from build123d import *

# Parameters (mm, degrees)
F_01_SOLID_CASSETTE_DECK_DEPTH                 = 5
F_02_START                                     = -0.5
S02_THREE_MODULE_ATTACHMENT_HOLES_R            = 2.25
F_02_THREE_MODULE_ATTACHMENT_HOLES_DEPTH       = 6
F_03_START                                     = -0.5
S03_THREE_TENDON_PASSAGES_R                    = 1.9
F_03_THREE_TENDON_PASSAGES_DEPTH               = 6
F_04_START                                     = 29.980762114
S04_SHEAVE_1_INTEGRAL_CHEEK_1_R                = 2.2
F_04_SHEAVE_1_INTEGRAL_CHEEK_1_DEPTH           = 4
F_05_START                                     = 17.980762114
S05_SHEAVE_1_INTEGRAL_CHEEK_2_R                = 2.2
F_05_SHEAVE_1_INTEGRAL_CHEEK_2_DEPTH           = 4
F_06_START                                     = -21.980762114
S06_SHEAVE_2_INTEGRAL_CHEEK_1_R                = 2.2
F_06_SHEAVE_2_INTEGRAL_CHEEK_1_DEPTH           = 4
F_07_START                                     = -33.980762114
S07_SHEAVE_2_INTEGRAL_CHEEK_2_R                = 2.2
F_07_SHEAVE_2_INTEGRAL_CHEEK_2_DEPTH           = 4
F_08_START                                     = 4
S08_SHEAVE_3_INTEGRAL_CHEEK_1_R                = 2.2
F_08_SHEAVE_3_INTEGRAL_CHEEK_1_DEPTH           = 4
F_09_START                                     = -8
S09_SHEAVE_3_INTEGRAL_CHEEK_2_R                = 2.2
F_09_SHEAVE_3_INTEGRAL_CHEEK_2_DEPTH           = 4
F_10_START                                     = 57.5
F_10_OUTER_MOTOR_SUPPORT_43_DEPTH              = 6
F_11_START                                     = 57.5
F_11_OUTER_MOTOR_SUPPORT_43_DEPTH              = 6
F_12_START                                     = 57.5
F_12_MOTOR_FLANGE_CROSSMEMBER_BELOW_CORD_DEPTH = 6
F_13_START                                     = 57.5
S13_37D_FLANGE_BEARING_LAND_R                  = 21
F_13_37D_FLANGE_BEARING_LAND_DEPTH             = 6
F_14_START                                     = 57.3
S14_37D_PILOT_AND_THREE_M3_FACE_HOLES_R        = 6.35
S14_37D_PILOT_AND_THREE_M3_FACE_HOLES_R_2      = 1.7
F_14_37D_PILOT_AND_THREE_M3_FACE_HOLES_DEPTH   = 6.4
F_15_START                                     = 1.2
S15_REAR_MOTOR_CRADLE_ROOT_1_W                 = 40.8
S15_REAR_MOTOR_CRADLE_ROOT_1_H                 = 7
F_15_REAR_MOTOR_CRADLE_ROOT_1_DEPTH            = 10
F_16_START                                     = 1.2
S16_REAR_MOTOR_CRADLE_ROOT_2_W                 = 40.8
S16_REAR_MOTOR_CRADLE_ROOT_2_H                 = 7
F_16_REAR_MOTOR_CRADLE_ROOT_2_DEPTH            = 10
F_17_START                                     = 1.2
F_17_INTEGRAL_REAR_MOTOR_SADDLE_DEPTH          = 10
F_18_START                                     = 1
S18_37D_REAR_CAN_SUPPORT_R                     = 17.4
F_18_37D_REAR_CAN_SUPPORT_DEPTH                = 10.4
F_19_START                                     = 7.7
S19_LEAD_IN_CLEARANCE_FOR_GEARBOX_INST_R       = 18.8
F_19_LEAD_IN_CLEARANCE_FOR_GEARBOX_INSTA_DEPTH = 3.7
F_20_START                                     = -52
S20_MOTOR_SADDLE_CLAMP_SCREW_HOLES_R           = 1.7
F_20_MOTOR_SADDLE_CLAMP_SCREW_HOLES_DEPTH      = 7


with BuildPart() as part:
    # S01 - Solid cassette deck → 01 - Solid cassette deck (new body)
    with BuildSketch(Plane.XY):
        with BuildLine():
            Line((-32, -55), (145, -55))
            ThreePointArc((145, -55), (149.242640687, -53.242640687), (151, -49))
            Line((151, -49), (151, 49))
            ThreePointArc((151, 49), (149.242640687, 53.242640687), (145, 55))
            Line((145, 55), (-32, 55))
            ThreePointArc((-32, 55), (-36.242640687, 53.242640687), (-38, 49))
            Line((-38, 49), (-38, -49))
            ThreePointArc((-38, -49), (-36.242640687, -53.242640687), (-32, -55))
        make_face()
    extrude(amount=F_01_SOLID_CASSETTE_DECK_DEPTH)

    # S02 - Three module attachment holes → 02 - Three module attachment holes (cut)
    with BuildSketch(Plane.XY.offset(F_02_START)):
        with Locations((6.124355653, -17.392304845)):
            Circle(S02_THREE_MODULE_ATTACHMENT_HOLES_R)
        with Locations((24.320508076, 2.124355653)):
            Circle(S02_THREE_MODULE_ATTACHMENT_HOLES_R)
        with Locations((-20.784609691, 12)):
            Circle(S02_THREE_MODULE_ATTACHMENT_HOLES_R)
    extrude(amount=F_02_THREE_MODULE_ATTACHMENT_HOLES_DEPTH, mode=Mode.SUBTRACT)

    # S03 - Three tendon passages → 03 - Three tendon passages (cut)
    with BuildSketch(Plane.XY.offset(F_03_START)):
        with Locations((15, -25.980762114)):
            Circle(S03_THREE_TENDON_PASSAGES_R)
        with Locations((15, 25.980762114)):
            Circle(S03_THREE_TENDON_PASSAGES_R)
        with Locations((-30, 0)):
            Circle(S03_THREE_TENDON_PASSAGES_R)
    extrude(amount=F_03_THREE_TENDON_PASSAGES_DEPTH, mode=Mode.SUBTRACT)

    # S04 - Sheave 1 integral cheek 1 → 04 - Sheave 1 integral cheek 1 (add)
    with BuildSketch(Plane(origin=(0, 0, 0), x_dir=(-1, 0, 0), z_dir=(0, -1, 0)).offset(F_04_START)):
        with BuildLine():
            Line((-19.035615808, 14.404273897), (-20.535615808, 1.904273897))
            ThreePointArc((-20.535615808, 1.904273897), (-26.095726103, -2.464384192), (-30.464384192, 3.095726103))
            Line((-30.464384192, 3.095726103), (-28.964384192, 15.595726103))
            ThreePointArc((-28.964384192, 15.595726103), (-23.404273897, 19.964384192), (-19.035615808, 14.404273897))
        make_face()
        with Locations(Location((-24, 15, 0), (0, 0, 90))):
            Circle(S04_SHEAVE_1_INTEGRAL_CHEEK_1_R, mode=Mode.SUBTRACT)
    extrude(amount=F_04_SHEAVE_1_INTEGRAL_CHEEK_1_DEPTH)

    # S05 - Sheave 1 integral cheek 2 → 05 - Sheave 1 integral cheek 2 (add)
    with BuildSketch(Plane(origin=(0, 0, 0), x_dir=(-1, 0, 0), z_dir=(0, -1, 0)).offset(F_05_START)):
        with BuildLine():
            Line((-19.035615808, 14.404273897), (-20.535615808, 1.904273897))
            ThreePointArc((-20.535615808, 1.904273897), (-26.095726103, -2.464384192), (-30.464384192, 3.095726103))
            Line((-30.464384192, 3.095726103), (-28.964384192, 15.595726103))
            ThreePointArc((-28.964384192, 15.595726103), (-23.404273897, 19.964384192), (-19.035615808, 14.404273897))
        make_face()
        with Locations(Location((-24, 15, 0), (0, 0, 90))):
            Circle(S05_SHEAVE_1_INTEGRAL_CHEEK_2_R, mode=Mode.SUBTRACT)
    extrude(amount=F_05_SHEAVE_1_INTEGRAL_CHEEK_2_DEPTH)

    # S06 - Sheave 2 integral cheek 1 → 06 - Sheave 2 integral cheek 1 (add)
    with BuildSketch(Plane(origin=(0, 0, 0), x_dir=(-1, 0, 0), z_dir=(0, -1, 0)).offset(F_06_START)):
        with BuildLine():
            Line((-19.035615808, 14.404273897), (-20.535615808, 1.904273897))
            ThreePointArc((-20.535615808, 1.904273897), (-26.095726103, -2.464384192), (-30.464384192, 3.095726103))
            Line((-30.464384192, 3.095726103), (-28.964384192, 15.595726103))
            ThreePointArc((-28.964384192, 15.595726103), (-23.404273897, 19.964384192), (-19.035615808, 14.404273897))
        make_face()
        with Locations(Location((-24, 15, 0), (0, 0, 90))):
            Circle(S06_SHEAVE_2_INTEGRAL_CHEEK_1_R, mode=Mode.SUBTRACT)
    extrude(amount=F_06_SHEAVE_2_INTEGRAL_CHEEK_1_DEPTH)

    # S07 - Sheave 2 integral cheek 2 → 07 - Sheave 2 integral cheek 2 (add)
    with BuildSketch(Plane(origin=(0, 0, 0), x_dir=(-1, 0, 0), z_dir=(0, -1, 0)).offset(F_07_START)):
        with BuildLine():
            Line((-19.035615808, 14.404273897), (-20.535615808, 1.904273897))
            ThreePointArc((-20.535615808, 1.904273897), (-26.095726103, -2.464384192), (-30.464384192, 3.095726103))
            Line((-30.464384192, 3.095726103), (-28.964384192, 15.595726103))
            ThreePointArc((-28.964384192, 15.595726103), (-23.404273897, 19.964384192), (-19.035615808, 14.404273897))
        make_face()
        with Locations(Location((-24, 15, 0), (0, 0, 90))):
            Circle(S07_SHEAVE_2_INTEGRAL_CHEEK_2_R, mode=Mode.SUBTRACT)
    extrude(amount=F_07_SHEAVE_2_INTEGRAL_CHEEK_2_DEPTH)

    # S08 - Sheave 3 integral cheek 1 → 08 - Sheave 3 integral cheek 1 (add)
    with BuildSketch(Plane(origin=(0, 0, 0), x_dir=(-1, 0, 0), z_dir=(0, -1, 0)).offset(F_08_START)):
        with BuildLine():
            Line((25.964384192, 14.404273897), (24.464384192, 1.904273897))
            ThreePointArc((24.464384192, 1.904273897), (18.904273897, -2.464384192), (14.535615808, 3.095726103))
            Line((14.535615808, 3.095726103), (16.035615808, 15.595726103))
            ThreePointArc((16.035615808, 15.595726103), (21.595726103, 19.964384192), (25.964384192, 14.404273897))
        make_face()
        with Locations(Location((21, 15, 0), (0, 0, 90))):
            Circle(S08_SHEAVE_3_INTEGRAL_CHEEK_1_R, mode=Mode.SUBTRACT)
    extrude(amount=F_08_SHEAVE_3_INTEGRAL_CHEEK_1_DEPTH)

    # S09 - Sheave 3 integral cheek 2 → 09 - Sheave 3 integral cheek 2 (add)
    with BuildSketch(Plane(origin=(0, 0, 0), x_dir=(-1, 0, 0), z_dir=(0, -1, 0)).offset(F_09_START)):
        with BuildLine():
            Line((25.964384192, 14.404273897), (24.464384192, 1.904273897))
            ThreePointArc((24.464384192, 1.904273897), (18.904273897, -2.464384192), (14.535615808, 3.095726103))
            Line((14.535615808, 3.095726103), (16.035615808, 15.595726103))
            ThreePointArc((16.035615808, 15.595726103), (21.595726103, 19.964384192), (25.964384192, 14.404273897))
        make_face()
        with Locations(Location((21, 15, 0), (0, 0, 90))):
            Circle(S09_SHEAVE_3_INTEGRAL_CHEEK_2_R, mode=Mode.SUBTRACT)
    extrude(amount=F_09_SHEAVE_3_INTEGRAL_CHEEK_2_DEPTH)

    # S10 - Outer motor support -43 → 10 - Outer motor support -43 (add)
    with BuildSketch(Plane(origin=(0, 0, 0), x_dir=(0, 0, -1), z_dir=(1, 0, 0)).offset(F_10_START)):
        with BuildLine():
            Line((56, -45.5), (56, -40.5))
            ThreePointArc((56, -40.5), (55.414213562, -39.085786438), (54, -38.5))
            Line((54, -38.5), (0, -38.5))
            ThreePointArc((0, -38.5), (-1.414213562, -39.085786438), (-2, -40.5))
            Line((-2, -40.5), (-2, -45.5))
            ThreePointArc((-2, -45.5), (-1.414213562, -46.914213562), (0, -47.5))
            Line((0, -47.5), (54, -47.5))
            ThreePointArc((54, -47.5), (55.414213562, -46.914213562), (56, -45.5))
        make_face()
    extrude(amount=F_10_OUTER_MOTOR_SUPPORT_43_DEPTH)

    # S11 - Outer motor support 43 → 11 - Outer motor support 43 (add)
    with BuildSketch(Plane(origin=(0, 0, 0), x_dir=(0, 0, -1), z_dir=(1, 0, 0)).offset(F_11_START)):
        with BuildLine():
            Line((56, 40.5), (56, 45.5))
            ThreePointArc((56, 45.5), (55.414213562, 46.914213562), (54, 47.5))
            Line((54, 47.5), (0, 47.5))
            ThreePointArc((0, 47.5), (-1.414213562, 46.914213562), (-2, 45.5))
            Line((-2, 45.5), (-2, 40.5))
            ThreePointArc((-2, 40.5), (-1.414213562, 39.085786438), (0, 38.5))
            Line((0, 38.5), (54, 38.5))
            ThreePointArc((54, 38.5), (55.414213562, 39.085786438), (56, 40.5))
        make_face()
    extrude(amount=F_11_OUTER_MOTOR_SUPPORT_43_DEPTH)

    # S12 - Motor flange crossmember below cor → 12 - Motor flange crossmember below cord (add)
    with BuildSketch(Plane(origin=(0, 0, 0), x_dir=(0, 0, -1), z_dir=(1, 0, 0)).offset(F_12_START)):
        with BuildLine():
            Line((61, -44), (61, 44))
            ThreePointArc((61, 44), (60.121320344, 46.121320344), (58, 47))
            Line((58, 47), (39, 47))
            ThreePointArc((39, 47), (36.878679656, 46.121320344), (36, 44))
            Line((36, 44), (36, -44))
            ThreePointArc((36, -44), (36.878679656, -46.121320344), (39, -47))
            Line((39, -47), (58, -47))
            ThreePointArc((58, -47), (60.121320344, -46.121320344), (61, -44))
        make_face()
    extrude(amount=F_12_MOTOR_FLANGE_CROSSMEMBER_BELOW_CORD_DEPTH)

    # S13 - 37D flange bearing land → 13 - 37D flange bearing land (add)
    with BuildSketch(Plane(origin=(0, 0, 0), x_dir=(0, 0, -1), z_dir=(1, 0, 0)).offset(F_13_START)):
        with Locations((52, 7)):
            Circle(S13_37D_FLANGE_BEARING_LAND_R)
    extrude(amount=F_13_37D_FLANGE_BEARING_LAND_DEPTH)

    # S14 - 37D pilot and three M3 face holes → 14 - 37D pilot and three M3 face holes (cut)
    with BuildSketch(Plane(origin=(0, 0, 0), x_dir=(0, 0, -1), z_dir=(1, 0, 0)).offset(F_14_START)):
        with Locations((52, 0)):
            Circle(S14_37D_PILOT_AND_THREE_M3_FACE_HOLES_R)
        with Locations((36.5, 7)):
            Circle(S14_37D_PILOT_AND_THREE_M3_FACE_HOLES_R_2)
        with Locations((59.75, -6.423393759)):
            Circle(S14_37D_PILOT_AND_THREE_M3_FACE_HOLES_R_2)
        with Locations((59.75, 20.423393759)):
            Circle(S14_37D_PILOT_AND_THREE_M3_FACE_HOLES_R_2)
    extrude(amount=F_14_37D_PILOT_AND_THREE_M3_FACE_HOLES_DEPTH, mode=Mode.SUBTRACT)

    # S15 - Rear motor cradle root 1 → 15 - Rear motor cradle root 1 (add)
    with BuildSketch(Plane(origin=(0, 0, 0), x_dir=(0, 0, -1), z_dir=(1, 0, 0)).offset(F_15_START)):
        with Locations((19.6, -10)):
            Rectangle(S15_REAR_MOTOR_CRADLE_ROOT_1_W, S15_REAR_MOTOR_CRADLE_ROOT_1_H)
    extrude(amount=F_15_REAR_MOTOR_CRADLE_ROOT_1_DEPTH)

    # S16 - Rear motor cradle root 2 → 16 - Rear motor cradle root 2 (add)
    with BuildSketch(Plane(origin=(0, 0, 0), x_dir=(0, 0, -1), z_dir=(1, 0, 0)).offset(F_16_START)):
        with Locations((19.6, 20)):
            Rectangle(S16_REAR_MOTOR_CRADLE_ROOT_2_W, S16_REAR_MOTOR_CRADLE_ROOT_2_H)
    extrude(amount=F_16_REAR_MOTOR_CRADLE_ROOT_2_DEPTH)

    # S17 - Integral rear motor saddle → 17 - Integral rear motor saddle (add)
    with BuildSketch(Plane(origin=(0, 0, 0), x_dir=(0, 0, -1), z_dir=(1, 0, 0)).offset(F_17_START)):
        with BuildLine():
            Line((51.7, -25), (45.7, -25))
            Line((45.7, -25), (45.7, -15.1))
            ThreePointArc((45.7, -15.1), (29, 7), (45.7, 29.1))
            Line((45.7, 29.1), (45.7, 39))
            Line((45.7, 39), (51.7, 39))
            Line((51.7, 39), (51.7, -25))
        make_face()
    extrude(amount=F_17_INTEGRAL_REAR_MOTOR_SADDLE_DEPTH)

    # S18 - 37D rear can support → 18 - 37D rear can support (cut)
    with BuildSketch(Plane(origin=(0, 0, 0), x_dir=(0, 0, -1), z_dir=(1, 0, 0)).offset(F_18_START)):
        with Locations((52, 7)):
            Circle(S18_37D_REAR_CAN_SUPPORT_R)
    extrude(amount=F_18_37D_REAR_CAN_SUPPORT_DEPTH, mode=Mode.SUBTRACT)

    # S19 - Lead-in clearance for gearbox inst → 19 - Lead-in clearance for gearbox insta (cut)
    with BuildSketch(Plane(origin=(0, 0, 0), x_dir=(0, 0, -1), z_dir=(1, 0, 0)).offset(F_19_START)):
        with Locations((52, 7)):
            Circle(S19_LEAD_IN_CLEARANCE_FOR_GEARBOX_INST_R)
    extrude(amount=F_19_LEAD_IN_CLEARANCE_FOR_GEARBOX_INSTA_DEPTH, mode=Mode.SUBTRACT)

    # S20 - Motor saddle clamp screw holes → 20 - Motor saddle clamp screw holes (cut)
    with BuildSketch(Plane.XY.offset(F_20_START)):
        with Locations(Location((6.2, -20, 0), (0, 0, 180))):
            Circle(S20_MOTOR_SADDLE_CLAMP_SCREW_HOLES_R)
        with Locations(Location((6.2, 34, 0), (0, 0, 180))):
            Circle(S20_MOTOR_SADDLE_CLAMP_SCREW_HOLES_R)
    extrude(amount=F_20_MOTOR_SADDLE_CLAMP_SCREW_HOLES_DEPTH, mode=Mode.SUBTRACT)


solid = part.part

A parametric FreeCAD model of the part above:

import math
import FreeCAD as App
import Part
import Sketcher
from FreeCAD import Vector
Q = App.Units.Quantity

doc = App.newDocument("Part")
params = doc.addObject("Spreadsheet::Sheet", "Params")
for row, (alias, value) in enumerate([
    ("sketch1_radius", "6 mm"),
    ("sketch1_width", "177 mm"),
    ("sketch1_height", "98 mm"),
    ("pad1_length", "5 mm"),
    ("sketch2_diameter", "4.5 mm"),
    ("pocket1_length", "6 mm"),
    ("sketch3_diameter", "3.8 mm"),
    ("pocket2_length", "6 mm"),
    ("sketch4_radius", "5 mm"),
    ("sketch4_diameter", "4.4 mm"),
    ("pad2_length", "4 mm"),
    ("sketch5_radius", "5 mm"),
    ("sketch5_diameter", "4.4 mm"),
    ("pad3_length", "4 mm"),
    ("sketch6_radius", "5 mm"),
    ("sketch6_diameter", "4.4 mm"),
    ("pad4_length", "4 mm"),
    ("sketch7_radius", "5 mm"),
    ("sketch7_diameter", "4.4 mm"),
    ("pad5_length", "4 mm"),
    ("sketch8_radius", "5 mm"),
    ("sketch8_diameter", "4.4 mm"),
    ("pad6_length", "4 mm"),
    ("sketch9_radius", "5 mm"),
    ("sketch9_diameter", "4.4 mm"),
    ("pad7_length", "4 mm"),
    ("sketch10_radius", "2 mm"),
    ("sketch10_width", "5 mm"),
    ("sketch10_height", "54 mm"),
    ("pad8_length", "6 mm"),
    ("sketch11_radius", "2 mm"),
    ("sketch11_width", "5 mm"),
    ("sketch11_height", "54 mm"),
    ("pad9_length", "6 mm"),
    ("sketch12_radius", "3 mm"),
    ("sketch12_width", "88 mm"),
    ("sketch12_height", "19 mm"),
    ("pad10_length", "6 mm"),
    ("sketch13_diameter", "42 mm"),
    ("pad11_length", "6 mm"),
    ("sketch14_diameter", "12.7 mm"),
    ("sketch14_diameter2", "3.4 mm"),
    ("pocket3_length", "6.4 mm"),
    ("sketch15_width", "7 mm"),
    ("sketch15_height", "40.8 mm"),
    ("pad12_length", "10 mm"),
    ("sketch16_width", "7 mm"),
    ("sketch16_height", "40.8 mm"),
    ("pad13_length", "10 mm"),
    ("sketch17_width", "64 mm"),
    ("sketch17_height", "6 mm"),
    ("sketch17_width2", "9.9 mm"),
    ("pad14_length", "10 mm"),
    ("sketch18_diameter", "34.8 mm"),
    ("pocket4_length", "10.4 mm"),
    ("sketch19_diameter", "37.6 mm"),
    ("pocket5_length", "3.7 mm"),
    ("sketch20_diameter", "3.4 mm"),
    ("pocket6_length", "7 mm"),
], start=1):
    params.set(f"A{row}", alias)
    params.set(f"B{row}", "=" + value)
    params.setAlias(f"B{row}", alias)

body = doc.addObject("PartDesign::Body", "Body")

# Sketch on XY plane
sketch1 = body.newObject("Sketcher::SketchObject", "Sketch")
sketch1.AttachmentSupport = (doc.getObject("XY_Plane"), [""])
sketch1.MapMode = "FlatFace"
sketch1.addGeometry([
    Part.LineSegment(Vector(-32, -55, 0), Vector(145, -55, 0)),  # 0
    Part.ArcOfCircle(Part.Circle(Vector(145, -49, 0), Vector(0, 0, 1), 6), math.radians(-90), math.radians(0)),  # 1
    Part.LineSegment(Vector(151, -49, 0), Vector(151, 49, 0)),  # 2
    Part.ArcOfCircle(Part.Circle(Vector(145, 49, 0), Vector(0, 0, 1), 6), math.radians(0), math.radians(90)),  # 3
    Part.LineSegment(Vector(145, 55, 0), Vector(-32, 55, 0)),  # 4
    Part.ArcOfCircle(Part.Circle(Vector(-32, 49, 0), Vector(0, 0, 1), 6), math.radians(90), math.radians(180)),  # 5
    Part.LineSegment(Vector(-38, 49, 0), Vector(-38, -49, 0)),  # 6
    Part.ArcOfCircle(Part.Circle(Vector(-32, -49, 0), Vector(0, 0, 1), 6), math.radians(180), math.radians(270)),  # 7
], False)
sketch1.addConstraint([
    Sketcher.Constraint("Tangent", 0, 2, 1, 1),
    Sketcher.Constraint("Tangent", 1, 2, 2, 1),
    Sketcher.Constraint("Tangent", 2, 2, 3, 1),
    Sketcher.Constraint("Tangent", 3, 2, 4, 1),
    Sketcher.Constraint("Tangent", 4, 2, 5, 1),
    Sketcher.Constraint("Tangent", 5, 2, 6, 1),
    Sketcher.Constraint("Tangent", 6, 2, 7, 1),
    Sketcher.Constraint("Tangent", 7, 2, 0, 1),
    Sketcher.Constraint("Horizontal", 0),
    Sketcher.Constraint("Vertical", 2),
    Sketcher.Constraint("Horizontal", 4),
    Sketcher.Constraint("Vertical", 6),
    Sketcher.Constraint("Equal", 1, 3),
    Sketcher.Constraint("Equal", 3, 5),
    Sketcher.Constraint("Equal", 5, 7),
    Sketcher.Constraint("Radius", 1, Q("6 mm")),
    Sketcher.Constraint("DistanceX", 0, 1, 0, 2, Q("177 mm")),
    Sketcher.Constraint("DistanceY", 2, 1, 2, 2, Q("98 mm")),
    Sketcher.Constraint("DistanceX", -1, 1, 1, 3, Q("145 mm")),
    Sketcher.Constraint("DistanceY", 1, 3, -1, 1, Q("49 mm")),
])
sketch1.setExpression("Constraints[15]", "Params.sketch1_radius")
sketch1.setExpression("Constraints[16]", "Params.sketch1_width")
sketch1.setExpression("Constraints[17]", "Params.sketch1_height")
pad1 = body.newObject("PartDesign::Pad", "Pad")
pad1.Profile = sketch1
pad1.setExpression("Length", "Params.pad1_length")

# Sketch on XY plane
sketch2 = body.newObject("Sketcher::SketchObject", "Sketch001")
sketch2.AttachmentSupport = (doc.getObject("XY_Plane"), [""])
sketch2.MapMode = "FlatFace"
sketch2.AttachmentOffset = App.Placement(Vector(0, 0, -0.5), App.Rotation())
sketch2.addGeometry([
    Part.Circle(Vector(6.1, -17.4, 0), Vector(0, 0, 1), 2.2),
    Part.Circle(Vector(24.3, 2.1, 0), Vector(0, 0, 1), 2.2),
    Part.Circle(Vector(-20.8, 12, 0), Vector(0, 0, 1), 2.2),
], False)
sketch2.addConstraint([
    Sketcher.Constraint("Equal", 0, 1),
    Sketcher.Constraint("Equal", 1, 2),
    Sketcher.Constraint("Diameter", 0, Q("4.5 mm")),
    Sketcher.Constraint("DistanceY", -1, 1, 2, 3, Q("12 mm")),
    Sketcher.Constraint("DistanceX", -1, 1, 1, 3, Q("24.320508 mm")),
    Sketcher.Constraint("DistanceX", 2, 3, -1, 1, Q("20.78461 mm")),
    Sketcher.Constraint("DistanceY", 0, 3, 1, 3, Q("19.51666 mm")),
    Sketcher.Constraint("DistanceX", -1, 1, 0, 3, Q("6.124356 mm")),
    Sketcher.Constraint("DistanceY", 0, 3, -1, 1, Q("17.392305 mm")),
])
sketch2.setExpression("Constraints[2]", "Params.sketch2_diameter")
pocket1 = body.newObject("PartDesign::Pocket", "Pocket")
pocket1.Profile = sketch2
pocket1.setExpression("Length", "Params.pocket1_length")
pocket1.Reversed = True

# Sketch on XY plane
sketch3 = body.newObject("Sketcher::SketchObject", "Sketch002")
sketch3.AttachmentSupport = (doc.getObject("XY_Plane"), [""])
sketch3.MapMode = "FlatFace"
sketch3.AttachmentOffset = App.Placement(Vector(0, 0, -0.5), App.Rotation())
sketch3.addGeometry([
    Part.Circle(Vector(15, -26, 0), Vector(0, 0, 1), 1.9),
    Part.Circle(Vector(15, 26, 0), Vector(0, 0, 1), 1.9),
    Part.Circle(Vector(-30, 0, 0), Vector(0, 0, 1), 1.9),
], False)
sketch3.addConstraint([
    Sketcher.Constraint("Equal", 0, 1),
    Sketcher.Constraint("Equal", 1, 2),
    Sketcher.Constraint("Symmetric", 0, 3, 1, 3, -1),
    Sketcher.Constraint("PointOnObject", 2, 3, -1),
    Sketcher.Constraint("Diameter", 0, Q("3.8 mm")),
    Sketcher.Constraint("DistanceX", -1, 1, 0, 3, Q("15 mm")),
    Sketcher.Constraint("DistanceX", 2, 3, -1, 1, Q("30 mm")),
    Sketcher.Constraint("DistanceY", 0, 3, -1, 1, Q("25.980762 mm")),
])
sketch3.setExpression("Constraints[4]", "Params.sketch3_diameter")
pocket2 = body.newObject("PartDesign::Pocket", "Pocket001")
pocket2.Profile = sketch3
pocket2.setExpression("Length", "Params.pocket2_length")
pocket2.Reversed = True

# Sketch on XZ plane
sketch4 = body.newObject("Sketcher::SketchObject", "Sketch003")
sketch4.AttachmentSupport = (doc.getObject("XZ_Plane"), [""])
sketch4.MapMode = "FlatFace"
sketch4.AttachmentOffset = App.Placement(Vector(0, 0, 29.980762), App.Rotation())
sketch4.addGeometry([
    Part.LineSegment(Vector(20.5, -1.9, 0), Vector(19, -14.4, 0)),  # 0
    Part.ArcOfCircle(Part.Circle(Vector(24, -15, 0), Vector(0, 0, 1), 5), math.radians(173), math.radians(353)),  # 1
    Part.LineSegment(Vector(29, -15.6, 0), Vector(30.5, -3.1, 0)),  # 2
    Part.ArcOfCircle(Part.Circle(Vector(25.5, -2.5, 0), Vector(0, 0, 1), 5), math.radians(-7), math.radians(173)),  # 3
    Part.Circle(Vector(24, -15, 0), Vector(0, 0, 1), 2.2),  # 4
], False)
sketch4.addConstraint([
    Sketcher.Constraint("Tangent", 0, 2, 1, 1),
    Sketcher.Constraint("Tangent", 1, 2, 2, 1),
    Sketcher.Constraint("Tangent", 2, 2, 3, 1),
    Sketcher.Constraint("Tangent", 3, 2, 0, 1),
    Sketcher.Constraint("Coincident", 4, 3, 1, 3),
    Sketcher.Constraint("Equal", 1, 3),
    Sketcher.Constraint("Radius", 1, Q("5 mm")),
    Sketcher.Constraint("Diameter", 4, Q("4.4 mm")),
    Sketcher.Constraint("DistanceX", -1, 1, 1, 3, Q("24 mm")),
    Sketcher.Constraint("DistanceY", 1, 3, -1, 1, Q("15 mm")),
    Sketcher.Constraint("DistanceX", -1, 1, 3, 3, Q("25.5 mm")),
    Sketcher.Constraint("DistanceY", 3, 3, -1, 1, Q("2.5 mm")),
])
sketch4.setExpression("Constraints[6]", "Params.sketch4_radius")
sketch4.setExpression("Constraints[7]", "Params.sketch4_diameter")
pad2 = body.newObject("PartDesign::Pad", "Pad001")
pad2.Profile = sketch4
pad2.setExpression("Length", "Params.pad2_length")

# Sketch on XZ plane
sketch5 = body.newObject("Sketcher::SketchObject", "Sketch004")
sketch5.AttachmentSupport = (doc.getObject("XZ_Plane"), [""])
sketch5.MapMode = "FlatFace"
sketch5.AttachmentOffset = App.Placement(Vector(0, 0, 17.980762), App.Rotation())
sketch5.addGeometry([
    Part.LineSegment(Vector(20.5, -1.9, 0), Vector(19, -14.4, 0)),  # 0
    Part.ArcOfCircle(Part.Circle(Vector(24, -15, 0), Vector(0, 0, 1), 5), math.radians(173), math.radians(353)),  # 1
    Part.LineSegment(Vector(29, -15.6, 0), Vector(30.5, -3.1, 0)),  # 2
    Part.ArcOfCircle(Part.Circle(Vector(25.5, -2.5, 0), Vector(0, 0, 1), 5), math.radians(-7), math.radians(173)),  # 3
    Part.Circle(Vector(24, -15, 0), Vector(0, 0, 1), 2.2),  # 4
], False)
sketch5.addConstraint([
    Sketcher.Constraint("Tangent", 0, 2, 1, 1),
    Sketcher.Constraint("Tangent", 1, 2, 2, 1),
    Sketcher.Constraint("Tangent", 2, 2, 3, 1),
    Sketcher.Constraint("Tangent", 3, 2, 0, 1),
    Sketcher.Constraint("Coincident", 4, 3, 1, 3),
    Sketcher.Constraint("Equal", 1, 3),
    Sketcher.Constraint("Radius", 1, Q("5 mm")),
    Sketcher.Constraint("Diameter", 4, Q("4.4 mm")),
    Sketcher.Constraint("DistanceX", -1, 1, 1, 3, Q("24 mm")),
    Sketcher.Constraint("DistanceY", 1, 3, -1, 1, Q("15 mm")),
    Sketcher.Constraint("DistanceX", -1, 1, 3, 3, Q("25.5 mm")),
    Sketcher.Constraint("DistanceY", 3, 3, -1, 1, Q("2.5 mm")),
])
sketch5.setExpression("Constraints[6]", "Params.sketch5_radius")
sketch5.setExpression("Constraints[7]", "Params.sketch5_diameter")
pad3 = body.newObject("PartDesign::Pad", "Pad002")
pad3.Profile = sketch5
pad3.setExpression("Length", "Params.pad3_length")

# Sketch on XZ plane
sketch6 = body.newObject("Sketcher::SketchObject", "Sketch005")
sketch6.AttachmentSupport = (doc.getObject("XZ_Plane"), [""])
sketch6.MapMode = "FlatFace"
sketch6.AttachmentOffset = App.Placement(Vector(0, 0, -21.980762), App.Rotation())
sketch6.addGeometry([
    Part.LineSegment(Vector(20.5, -1.9, 0), Vector(19, -14.4, 0)),  # 0
    Part.ArcOfCircle(Part.Circle(Vector(24, -15, 0), Vector(0, 0, 1), 5), math.radians(173), math.radians(353)),  # 1
    Part.LineSegment(Vector(29, -15.6, 0), Vector(30.5, -3.1, 0)),  # 2
    Part.ArcOfCircle(Part.Circle(Vector(25.5, -2.5, 0), Vector(0, 0, 1), 5), math.radians(-7), math.radians(173)),  # 3
    Part.Circle(Vector(24, -15, 0), Vector(0, 0, 1), 2.2),  # 4
], False)
sketch6.addConstraint([
    Sketcher.Constraint("Tangent", 0, 2, 1, 1),
    Sketcher.Constraint("Tangent", 1, 2, 2, 1),
    Sketcher.Constraint("Tangent", 2, 2, 3, 1),
    Sketcher.Constraint("Tangent", 3, 2, 0, 1),
    Sketcher.Constraint("Coincident", 4, 3, 1, 3),
    Sketcher.Constraint("Equal", 1, 3),
    Sketcher.Constraint("Radius", 1, Q("5 mm")),
    Sketcher.Constraint("Diameter", 4, Q("4.4 mm")),
    Sketcher.Constraint("DistanceX", -1, 1, 1, 3, Q("24 mm")),
    Sketcher.Constraint("DistanceY", 1, 3, -1, 1, Q("15 mm")),
    Sketcher.Constraint("DistanceX", -1, 1, 3, 3, Q("25.5 mm")),
    Sketcher.Constraint("DistanceY", 3, 3, -1, 1, Q("2.5 mm")),
])
sketch6.setExpression("Constraints[6]", "Params.sketch6_radius")
sketch6.setExpression("Constraints[7]", "Params.sketch6_diameter")
pad4 = body.newObject("PartDesign::Pad", "Pad003")
pad4.Profile = sketch6
pad4.setExpression("Length", "Params.pad4_length")

# Sketch on XZ plane
sketch7 = body.newObject("Sketcher::SketchObject", "Sketch006")
sketch7.AttachmentSupport = (doc.getObject("XZ_Plane"), [""])
sketch7.MapMode = "FlatFace"
sketch7.AttachmentOffset = App.Placement(Vector(0, 0, -33.980762), App.Rotation())
sketch7.addGeometry([
    Part.LineSegment(Vector(20.5, -1.9, 0), Vector(19, -14.4, 0)),  # 0
    Part.ArcOfCircle(Part.Circle(Vector(24, -15, 0), Vector(0, 0, 1), 5), math.radians(173), math.radians(353)),  # 1
    Part.LineSegment(Vector(29, -15.6, 0), Vector(30.5, -3.1, 0)),  # 2
    Part.ArcOfCircle(Part.Circle(Vector(25.5, -2.5, 0), Vector(0, 0, 1), 5), math.radians(-7), math.radians(173)),  # 3
    Part.Circle(Vector(24, -15, 0), Vector(0, 0, 1), 2.2),  # 4
], False)
sketch7.addConstraint([
    Sketcher.Constraint("Tangent", 0, 2, 1, 1),
    Sketcher.Constraint("Tangent", 1, 2, 2, 1),
    Sketcher.Constraint("Tangent", 2, 2, 3, 1),
    Sketcher.Constraint("Tangent", 3, 2, 0, 1),
    Sketcher.Constraint("Coincident", 4, 3, 1, 3),
    Sketcher.Constraint("Equal", 1, 3),
    Sketcher.Constraint("Radius", 1, Q("5 mm")),
    Sketcher.Constraint("Diameter", 4, Q("4.4 mm")),
    Sketcher.Constraint("DistanceX", -1, 1, 1, 3, Q("24 mm")),
    Sketcher.Constraint("DistanceY", 1, 3, -1, 1, Q("15 mm")),
    Sketcher.Constraint("DistanceX", -1, 1, 3, 3, Q("25.5 mm")),
    Sketcher.Constraint("DistanceY", 3, 3, -1, 1, Q("2.5 mm")),
])
sketch7.setExpression("Constraints[6]", "Params.sketch7_radius")
sketch7.setExpression("Constraints[7]", "Params.sketch7_diameter")
pad5 = body.newObject("PartDesign::Pad", "Pad004")
pad5.Profile = sketch7
pad5.setExpression("Length", "Params.pad5_length")

# Sketch on XZ plane
sketch8 = body.newObject("Sketcher::SketchObject", "Sketch007")
sketch8.AttachmentSupport = (doc.getObject("XZ_Plane"), [""])
sketch8.MapMode = "FlatFace"
sketch8.AttachmentOffset = App.Placement(Vector(0, 0, 4), App.Rotation())
sketch8.addGeometry([
    Part.LineSegment(Vector(-24.5, -1.9, 0), Vector(-26, -14.4, 0)),  # 0
    Part.ArcOfCircle(Part.Circle(Vector(-21, -15, 0), Vector(0, 0, 1), 5), math.radians(173), math.radians(353)),  # 1
    Part.LineSegment(Vector(-16, -15.6, 0), Vector(-14.5, -3.1, 0)),  # 2
    Part.ArcOfCircle(Part.Circle(Vector(-19.5, -2.5, 0), Vector(0, 0, 1), 5), math.radians(-7), math.radians(173)),  # 3
    Part.Circle(Vector(-21, -15, 0), Vector(0, 0, 1), 2.2),  # 4
], False)
sketch8.addConstraint([
    Sketcher.Constraint("Tangent", 0, 2, 1, 1),
    Sketcher.Constraint("Tangent", 1, 2, 2, 1),
    Sketcher.Constraint("Tangent", 2, 2, 3, 1),
    Sketcher.Constraint("Tangent", 3, 2, 0, 1),
    Sketcher.Constraint("Coincident", 4, 3, 1, 3),
    Sketcher.Constraint("Equal", 1, 3),
    Sketcher.Constraint("Radius", 1, Q("5 mm")),
    Sketcher.Constraint("Diameter", 4, Q("4.4 mm")),
    Sketcher.Constraint("DistanceX", 1, 3, -1, 1, Q("21 mm")),
    Sketcher.Constraint("DistanceY", 1, 3, -1, 1, Q("15 mm")),
    Sketcher.Constraint("DistanceX", 3, 3, -1, 1, Q("19.5 mm")),
    Sketcher.Constraint("DistanceY", 3, 3, -1, 1, Q("2.5 mm")),
])
sketch8.setExpression("Constraints[6]", "Params.sketch8_radius")
sketch8.setExpression("Constraints[7]", "Params.sketch8_diameter")
pad6 = body.newObject("PartDesign::Pad", "Pad005")
pad6.Profile = sketch8
pad6.setExpression("Length", "Params.pad6_length")

# Sketch on XZ plane
sketch9 = body.newObject("Sketcher::SketchObject", "Sketch008")
sketch9.AttachmentSupport = (doc.getObject("XZ_Plane"), [""])
sketch9.MapMode = "FlatFace"
sketch9.AttachmentOffset = App.Placement(Vector(0, 0, -8), App.Rotation())
sketch9.addGeometry([
    Part.LineSegment(Vector(-24.5, -1.9, 0), Vector(-26, -14.4, 0)),  # 0
    Part.ArcOfCircle(Part.Circle(Vector(-21, -15, 0), Vector(0, 0, 1), 5), math.radians(173), math.radians(353)),  # 1
    Part.LineSegment(Vector(-16, -15.6, 0), Vector(-14.5, -3.1, 0)),  # 2
    Part.ArcOfCircle(Part.Circle(Vector(-19.5, -2.5, 0), Vector(0, 0, 1), 5), math.radians(-7), math.radians(173)),  # 3
    Part.Circle(Vector(-21, -15, 0), Vector(0, 0, 1), 2.2),  # 4
], False)
sketch9.addConstraint([
    Sketcher.Constraint("Tangent", 0, 2, 1, 1),
    Sketcher.Constraint("Tangent", 1, 2, 2, 1),
    Sketcher.Constraint("Tangent", 2, 2, 3, 1),
    Sketcher.Constraint("Tangent", 3, 2, 0, 1),
    Sketcher.Constraint("Coincident", 4, 3, 1, 3),
    Sketcher.Constraint("Equal", 1, 3),
    Sketcher.Constraint("Radius", 1, Q("5 mm")),
    Sketcher.Constraint("Diameter", 4, Q("4.4 mm")),
    Sketcher.Constraint("DistanceX", 1, 3, -1, 1, Q("21 mm")),
    Sketcher.Constraint("DistanceY", 1, 3, -1, 1, Q("15 mm")),
    Sketcher.Constraint("DistanceX", 3, 3, -1, 1, Q("19.5 mm")),
    Sketcher.Constraint("DistanceY", 3, 3, -1, 1, Q("2.5 mm")),
])
sketch9.setExpression("Constraints[6]", "Params.sketch9_radius")
sketch9.setExpression("Constraints[7]", "Params.sketch9_diameter")
pad7 = body.newObject("PartDesign::Pad", "Pad006")
pad7.Profile = sketch9
pad7.setExpression("Length", "Params.pad7_length")

# Sketch on YZ plane
sketch10 = body.newObject("Sketcher::SketchObject", "Sketch009")
sketch10.AttachmentSupport = (doc.getObject("YZ_Plane"), [""])
sketch10.MapMode = "FlatFace"
sketch10.AttachmentOffset = App.Placement(Vector(0, 0, 57.5), App.Rotation())
sketch10.addGeometry([
    Part.LineSegment(Vector(-45.5, -56, 0), Vector(-40.5, -56, 0)),  # 0
    Part.ArcOfCircle(Part.Circle(Vector(-40.5, -54, 0), Vector(0, 0, 1), 2), math.radians(-90), math.radians(0)),  # 1
    Part.LineSegment(Vector(-38.5, -54, 0), Vector(-38.5, 0, 0)),  # 2
    Part.ArcOfCircle(Part.Circle(Vector(-40.5, 0, 0), Vector(0, 0, 1), 2), math.radians(0), math.radians(90)),  # 3
    Part.LineSegment(Vector(-40.5, 2, 0), Vector(-45.5, 2, 0)),  # 4
    Part.ArcOfCircle(Part.Circle(Vector(-45.5, 0, 0), Vector(0, 0, 1), 2), math.radians(90), math.radians(180)),  # 5
    Part.LineSegment(Vector(-47.5, 0, 0), Vector(-47.5, -54, 0)),  # 6
    Part.ArcOfCircle(Part.Circle(Vector(-45.5, -54, 0), Vector(0, 0, 1), 2), math.radians(-180), math.radians(-90)),  # 7
], False)
sketch10.addConstraint([
    Sketcher.Constraint("Tangent", 0, 2, 1, 1),
    Sketcher.Constraint("Tangent", 1, 2, 2, 1),
    Sketcher.Constraint("Tangent", 2, 2, 3, 1),
    Sketcher.Constraint("Tangent", 3, 2, 4, 1),
    Sketcher.Constraint("Tangent", 4, 2, 5, 1),
    Sketcher.Constraint("Tangent", 5, 2, 6, 1),
    Sketcher.Constraint("Tangent", 6, 2, 7, 1),
    Sketcher.Constraint("Tangent", 7, 2, 0, 1),
    Sketcher.Constraint("Horizontal", 0),
    Sketcher.Constraint("Vertical", 2),
    Sketcher.Constraint("Horizontal", 4),
    Sketcher.Constraint("Vertical", 6),
    Sketcher.Constraint("Equal", 1, 3),
    Sketcher.Constraint("Equal", 3, 5),
    Sketcher.Constraint("Equal", 5, 7),
    Sketcher.Constraint("PointOnObject", 3, 3, -1),
    Sketcher.Constraint("Radius", 1, Q("2 mm")),
    Sketcher.Constraint("DistanceX", 0, 1, 0, 2, Q("5 mm")),
    Sketcher.Constraint("DistanceY", 2, 1, 2, 2, Q("54 mm")),
    Sketcher.Constraint("DistanceX", 1, 3, -1, 1, Q("40.5 mm")),
])
sketch10.setExpression("Constraints[16]", "Params.sketch10_radius")
sketch10.setExpression("Constraints[17]", "Params.sketch10_width")
sketch10.setExpression("Constraints[18]", "Params.sketch10_height")
pad8 = body.newObject("PartDesign::Pad", "Pad007")
pad8.Profile = sketch10
pad8.setExpression("Length", "Params.pad8_length")

# Sketch on YZ plane
sketch11 = body.newObject("Sketcher::SketchObject", "Sketch010")
sketch11.AttachmentSupport = (doc.getObject("YZ_Plane"), [""])
sketch11.MapMode = "FlatFace"
sketch11.AttachmentOffset = App.Placement(Vector(0, 0, 57.5), App.Rotation())
sketch11.addGeometry([
    Part.LineSegment(Vector(40.5, -56, 0), Vector(45.5, -56, 0)),  # 0
    Part.ArcOfCircle(Part.Circle(Vector(45.5, -54, 0), Vector(0, 0, 1), 2), math.radians(-90), math.radians(0)),  # 1
    Part.LineSegment(Vector(47.5, -54, 0), Vector(47.5, 0, 0)),  # 2
    Part.ArcOfCircle(Part.Circle(Vector(45.5, 0, 0), Vector(0, 0, 1), 2), math.radians(0), math.radians(90)),  # 3
    Part.LineSegment(Vector(45.5, 2, 0), Vector(40.5, 2, 0)),  # 4
    Part.ArcOfCircle(Part.Circle(Vector(40.5, 0, 0), Vector(0, 0, 1), 2), math.radians(90), math.radians(180)),  # 5
    Part.LineSegment(Vector(38.5, 0, 0), Vector(38.5, -54, 0)),  # 6
    Part.ArcOfCircle(Part.Circle(Vector(40.5, -54, 0), Vector(0, 0, 1), 2), math.radians(-180), math.radians(-90)),  # 7
], False)
sketch11.addConstraint([
    Sketcher.Constraint("Tangent", 0, 2, 1, 1),
    Sketcher.Constraint("Tangent", 1, 2, 2, 1),
    Sketcher.Constraint("Tangent", 2, 2, 3, 1),
    Sketcher.Constraint("Tangent", 3, 2, 4, 1),
    Sketcher.Constraint("Tangent", 4, 2, 5, 1),
    Sketcher.Constraint("Tangent", 5, 2, 6, 1),
    Sketcher.Constraint("Tangent", 6, 2, 7, 1),
    Sketcher.Constraint("Tangent", 7, 2, 0, 1),
    Sketcher.Constraint("Horizontal", 0),
    Sketcher.Constraint("Vertical", 2),
    Sketcher.Constraint("Horizontal", 4),
    Sketcher.Constraint("Vertical", 6),
    Sketcher.Constraint("Equal", 1, 3),
    Sketcher.Constraint("Equal", 3, 5),
    Sketcher.Constraint("Equal", 5, 7),
    Sketcher.Constraint("PointOnObject", 3, 3, -1),
    Sketcher.Constraint("Radius", 1, Q("2 mm")),
    Sketcher.Constraint("DistanceX", 0, 1, 0, 2, Q("5 mm")),
    Sketcher.Constraint("DistanceY", 2, 1, 2, 2, Q("54 mm")),
    Sketcher.Constraint("DistanceX", -1, 1, 1, 3, Q("45.5 mm")),
])
sketch11.setExpression("Constraints[16]", "Params.sketch11_radius")
sketch11.setExpression("Constraints[17]", "Params.sketch11_width")
sketch11.setExpression("Constraints[18]", "Params.sketch11_height")
pad9 = body.newObject("PartDesign::Pad", "Pad008")
pad9.Profile = sketch11
pad9.setExpression("Length", "Params.pad9_length")

# Sketch on YZ plane
sketch12 = body.newObject("Sketcher::SketchObject", "Sketch011")
sketch12.AttachmentSupport = (doc.getObject("YZ_Plane"), [""])
sketch12.MapMode = "FlatFace"
sketch12.AttachmentOffset = App.Placement(Vector(0, 0, 57.5), App.Rotation())
sketch12.addGeometry([
    Part.LineSegment(Vector(-44, -61, 0), Vector(44, -61, 0)),  # 0
    Part.ArcOfCircle(Part.Circle(Vector(44, -58, 0), Vector(0, 0, 1), 3), math.radians(-90), math.radians(0)),  # 1
    Part.LineSegment(Vector(47, -58, 0), Vector(47, -39, 0)),  # 2
    Part.ArcOfCircle(Part.Circle(Vector(44, -39, 0), Vector(0, 0, 1), 3), math.radians(0), math.radians(90)),  # 3
    Part.LineSegment(Vector(44, -36, 0), Vector(-44, -36, 0)),  # 4
    Part.ArcOfCircle(Part.Circle(Vector(-44, -39, 0), Vector(0, 0, 1), 3), math.radians(90), math.radians(180)),  # 5
    Part.LineSegment(Vector(-47, -39, 0), Vector(-47, -58, 0)),  # 6
    Part.ArcOfCircle(Part.Circle(Vector(-44, -58, 0), Vector(0, 0, 1), 3), math.radians(180), math.radians(270)),  # 7
], False)
sketch12.addConstraint([
    Sketcher.Constraint("Tangent", 0, 2, 1, 1),
    Sketcher.Constraint("Tangent", 1, 2, 2, 1),
    Sketcher.Constraint("Tangent", 2, 2, 3, 1),
    Sketcher.Constraint("Tangent", 3, 2, 4, 1),
    Sketcher.Constraint("Tangent", 4, 2, 5, 1),
    Sketcher.Constraint("Tangent", 5, 2, 6, 1),
    Sketcher.Constraint("Tangent", 6, 2, 7, 1),
    Sketcher.Constraint("Tangent", 7, 2, 0, 1),
    Sketcher.Constraint("Horizontal", 0),
    Sketcher.Constraint("Vertical", 2),
    Sketcher.Constraint("Horizontal", 4),
    Sketcher.Constraint("Vertical", 6),
    Sketcher.Constraint("Equal", 1, 3),
    Sketcher.Constraint("Equal", 3, 5),
    Sketcher.Constraint("Equal", 5, 7),
    Sketcher.Constraint("Radius", 1, Q("3 mm")),
    Sketcher.Constraint("DistanceX", 0, 1, 0, 2, Q("88 mm")),
    Sketcher.Constraint("DistanceY", 2, 1, 2, 2, Q("19 mm")),
    Sketcher.Constraint("DistanceX", -1, 1, 1, 3, Q("44 mm")),
    Sketcher.Constraint("DistanceY", 1, 3, -1, 1, Q("58 mm")),
])
sketch12.setExpression("Constraints[15]", "Params.sketch12_radius")
sketch12.setExpression("Constraints[16]", "Params.sketch12_width")
sketch12.setExpression("Constraints[17]", "Params.sketch12_height")
pad10 = body.newObject("PartDesign::Pad", "Pad009")
pad10.Profile = sketch12
pad10.setExpression("Length", "Params.pad10_length")

# Sketch on YZ plane
sketch13 = body.newObject("Sketcher::SketchObject", "Sketch012")
sketch13.AttachmentSupport = (doc.getObject("YZ_Plane"), [""])
sketch13.MapMode = "FlatFace"
sketch13.AttachmentOffset = App.Placement(Vector(0, 0, 57.5), App.Rotation())
sketch13.addGeometry(Part.Circle(Vector(7, -52, 0), Vector(0, 0, 1), 21), False)
sketch13.addConstraint([
    Sketcher.Constraint("Diameter", 0, Q("42 mm")),
    Sketcher.Constraint("DistanceX", -1, 1, 0, 3, Q("7 mm")),
    Sketcher.Constraint("DistanceY", 0, 3, -1, 1, Q("52 mm")),
])
sketch13.setExpression("Constraints[0]", "Params.sketch13_diameter")
pad11 = body.newObject("PartDesign::Pad", "Pad010")
pad11.Profile = sketch13
pad11.setExpression("Length", "Params.pad11_length")

# Sketch on YZ plane
sketch14 = body.newObject("Sketcher::SketchObject", "Sketch013")
sketch14.AttachmentSupport = (doc.getObject("YZ_Plane"), [""])
sketch14.MapMode = "FlatFace"
sketch14.AttachmentOffset = App.Placement(Vector(0, 0, 57.3), App.Rotation())
sketch14.addGeometry([
    Part.Circle(Vector(0, -52, 0), Vector(0, 0, 1), 6.3),
    Part.Circle(Vector(7, -36.5, 0), Vector(0, 0, 1), 1.7),
    Part.Circle(Vector(-6.4, -59.8, 0), Vector(0, 0, 1), 1.7),
    Part.Circle(Vector(20.4, -59.8, 0), Vector(0, 0, 1), 1.7),
], False)
sketch14.addConstraint([
    Sketcher.Constraint("Equal", 1, 2),
    Sketcher.Constraint("Equal", 2, 3),
    Sketcher.Constraint("PointOnObject", 0, 3, -2),
    Sketcher.Constraint("Horizontal", 2, 3, 3, 3),
    Sketcher.Constraint("Diameter", 0, Q("12.7 mm")),
    Sketcher.Constraint("Diameter", 1, Q("3.4 mm")),
    Sketcher.Constraint("DistanceY", 0, 3, -1, 1, Q("52 mm")),
    Sketcher.Constraint("DistanceX", -1, 1, 1, 3, Q("7 mm")),
    Sketcher.Constraint("DistanceY", 1, 3, -1, 1, Q("36.5 mm")),
    Sketcher.Constraint("DistanceY", 2, 3, -1, 1, Q("59.75 mm")),
    Sketcher.Constraint("DistanceX", 2, 3, -1, 1, Q("6.423394 mm")),
    Sketcher.Constraint("DistanceX", -1, 1, 3, 3, Q("20.423394 mm")),
])
sketch14.setExpression("Constraints[4]", "Params.sketch14_diameter")
sketch14.setExpression("Constraints[5]", "Params.sketch14_diameter2")
pocket3 = body.newObject("PartDesign::Pocket", "Pocket002")
pocket3.Profile = sketch14
pocket3.setExpression("Length", "Params.pocket3_length")
pocket3.Reversed = True

# Sketch on YZ plane
sketch15 = body.newObject("Sketcher::SketchObject", "Sketch014")
sketch15.AttachmentSupport = (doc.getObject("YZ_Plane"), [""])
sketch15.MapMode = "FlatFace"
sketch15.AttachmentOffset = App.Placement(Vector(0, 0, 1.2), App.Rotation())
sketch15.addGeometry([
    Part.LineSegment(Vector(-6, 1, 0), Vector(-14, 1, 0)),
    Part.LineSegment(Vector(-14, 1, 0), Vector(-14, -40, 0)),
    Part.LineSegment(Vector(-14, -40, 0), Vector(-6, -40, 0)),
    Part.LineSegment(Vector(-6, -40, 0), Vector(-6, 1, 0)),
], False)
sketch15.addConstraint([
    Sketcher.Constraint("Coincident", 0, 2, 1, 1),
    Sketcher.Constraint("Coincident", 1, 2, 2, 1),
    Sketcher.Constraint("Coincident", 2, 2, 3, 1),
    Sketcher.Constraint("Coincident", 3, 2, 0, 1),
    Sketcher.Constraint("Horizontal", 0),
    Sketcher.Constraint("Vertical", 1),
    Sketcher.Constraint("Horizontal", 2),
    Sketcher.Constraint("Vertical", 3),
    Sketcher.Constraint("DistanceX", 0, 2, 0, 1, Q("7 mm")),
    Sketcher.Constraint("DistanceY", 1, 2, 1, 1, Q("40.8 mm")),
    Sketcher.Constraint("DistanceY", 1, 2, -1, 1, Q("40 mm")),
    Sketcher.Constraint("DistanceX", 0, 2, -1, 1, Q("13.5 mm")),
])
sketch15.setExpression("Constraints[8]", "Params.sketch15_width")
sketch15.setExpression("Constraints[9]", "Params.sketch15_height")
pad12 = body.newObject("PartDesign::Pad", "Pad011")
pad12.Profile = sketch15
pad12.setExpression("Length", "Params.pad12_length")

# Sketch on YZ plane
sketch16 = body.newObject("Sketcher::SketchObject", "Sketch015")
sketch16.AttachmentSupport = (doc.getObject("YZ_Plane"), [""])
sketch16.MapMode = "FlatFace"
sketch16.AttachmentOffset = App.Placement(Vector(0, 0, 1.2), App.Rotation())
sketch16.addGeometry([
    Part.LineSegment(Vector(24, 1, 0), Vector(16, 1, 0)),
    Part.LineSegment(Vector(16, 1, 0), Vector(16, -40, 0)),
    Part.LineSegment(Vector(16, -40, 0), Vector(24, -40, 0)),
    Part.LineSegment(Vector(24, -40, 0), Vector(24, 1, 0)),
], False)
sketch16.addConstraint([
    Sketcher.Constraint("Coincident", 0, 2, 1, 1),
    Sketcher.Constraint("Coincident", 1, 2, 2, 1),
    Sketcher.Constraint("Coincident", 2, 2, 3, 1),
    Sketcher.Constraint("Coincident", 3, 2, 0, 1),
    Sketcher.Constraint("Horizontal", 0),
    Sketcher.Constraint("Vertical", 1),
    Sketcher.Constraint("Horizontal", 2),
    Sketcher.Constraint("Vertical", 3),
    Sketcher.Constraint("DistanceX", 0, 2, 0, 1, Q("7 mm")),
    Sketcher.Constraint("DistanceY", 1, 2, 1, 1, Q("40.8 mm")),
    Sketcher.Constraint("DistanceY", 1, 2, -1, 1, Q("40 mm")),
    Sketcher.Constraint("DistanceX", -1, 1, 0, 2, Q("16.5 mm")),
])
sketch16.setExpression("Constraints[8]", "Params.sketch16_width")
sketch16.setExpression("Constraints[9]", "Params.sketch16_height")
pad13 = body.newObject("PartDesign::Pad", "Pad012")
pad13.Profile = sketch16
pad13.setExpression("Length", "Params.pad13_length")

# Sketch on YZ plane
sketch17 = body.newObject("Sketcher::SketchObject", "Sketch016")
sketch17.AttachmentSupport = (doc.getObject("YZ_Plane"), [""])
sketch17.MapMode = "FlatFace"
sketch17.AttachmentOffset = App.Placement(Vector(0, 0, 1.2), App.Rotation())
sketch17.addGeometry([
    Part.LineSegment(Vector(-25, -46, 0), Vector(-25, -52, 0)),  # 0
    Part.LineSegment(Vector(-25, -52, 0), Vector(39, -52, 0)),  # 1
    Part.LineSegment(Vector(39, -52, 0), Vector(39, -46, 0)),  # 2
    Part.LineSegment(Vector(39, -46, 0), Vector(29, -46, 0)),  # 3
    Part.ArcOfCircle(Part.Circle(Vector(7, -52, 0), Vector(0, 0, 1), 23), math.radians(16), math.radians(164)),  # 4
    Part.LineSegment(Vector(-15, -46, 0), Vector(-25, -46, 0)),  # 5
], False)
sketch17.addConstraint([
    Sketcher.Constraint("Coincident", 0, 2, 1, 1),
    Sketcher.Constraint("Coincident", 1, 2, 2, 1),
    Sketcher.Constraint("Coincident", 2, 2, 3, 1),
    Sketcher.Constraint("Coincident", 3, 2, 4, 1),
    Sketcher.Constraint("Coincident", 4, 2, 5, 1),
    Sketcher.Constraint("Coincident", 5, 2, 0, 1),
    Sketcher.Constraint("Vertical", 0),
    Sketcher.Constraint("Horizontal", 1),
    Sketcher.Constraint("Vertical", 2),
    Sketcher.Constraint("Horizontal", 3),
    Sketcher.Constraint("Horizontal", 5),
    Sketcher.Constraint("Horizontal", 3, 2, 4, 2),
    Sketcher.Constraint("Equal", 3, 5),
    Sketcher.Constraint("DistanceX", 1, 1, 1, 2, Q("64 mm")),
    Sketcher.Constraint("DistanceY", 0, 2, 0, 1, Q("6 mm")),
    Sketcher.Constraint("DistanceX", 3, 2, 3, 1, Q("9.9 mm")),
    Sketcher.Constraint("DistanceX", -1, 1, 4, 3, Q("7 mm")),
    Sketcher.Constraint("DistanceY", 0, 2, -1, 1, Q("51.7 mm")),
    Sketcher.Constraint("Radius", 4, Q("22.973054 mm")),
])
sketch17.setExpression("Constraints[13]", "Params.sketch17_width")
sketch17.setExpression("Constraints[14]", "Params.sketch17_height")
sketch17.setExpression("Constraints[15]", "Params.sketch17_width2")
pad14 = body.newObject("PartDesign::Pad", "Pad013")
pad14.Profile = sketch17
pad14.setExpression("Length", "Params.pad14_length")

# Sketch on YZ plane
sketch18 = body.newObject("Sketcher::SketchObject", "Sketch017")
sketch18.AttachmentSupport = (doc.getObject("YZ_Plane"), [""])
sketch18.MapMode = "FlatFace"
sketch18.AttachmentOffset = App.Placement(Vector(0, 0, 1), App.Rotation())
sketch18.addGeometry(Part.Circle(Vector(7, -52, 0), Vector(0, 0, 1), 17), False)
sketch18.addConstraint([
    Sketcher.Constraint("Diameter", 0, Q("34.8 mm")),
    Sketcher.Constraint("DistanceX", -1, 1, 0, 3, Q("7 mm")),
    Sketcher.Constraint("DistanceY", 0, 3, -1, 1, Q("52 mm")),
])
sketch18.setExpression("Constraints[0]", "Params.sketch18_diameter")
pocket4 = body.newObject("PartDesign::Pocket", "Pocket003")
pocket4.Profile = sketch18
pocket4.setExpression("Length", "Params.pocket4_length")
pocket4.Reversed = True

# Sketch on YZ plane
sketch19 = body.newObject("Sketcher::SketchObject", "Sketch018")
sketch19.AttachmentSupport = (doc.getObject("YZ_Plane"), [""])
sketch19.MapMode = "FlatFace"
sketch19.AttachmentOffset = App.Placement(Vector(0, 0, 7.7), App.Rotation())
sketch19.addGeometry(Part.Circle(Vector(7, -52, 0), Vector(0, 0, 1), 19), False)
sketch19.addConstraint([
    Sketcher.Constraint("Diameter", 0, Q("37.6 mm")),
    Sketcher.Constraint("DistanceX", -1, 1, 0, 3, Q("7 mm")),
    Sketcher.Constraint("DistanceY", 0, 3, -1, 1, Q("52 mm")),
])
sketch19.setExpression("Constraints[0]", "Params.sketch19_diameter")
pocket5 = body.newObject("PartDesign::Pocket", "Pocket004")
pocket5.Profile = sketch19
pocket5.setExpression("Length", "Params.pocket5_length")
pocket5.Reversed = True

# Sketch on XY plane
sketch20 = body.newObject("Sketcher::SketchObject", "Sketch019")
sketch20.AttachmentSupport = (doc.getObject("XY_Plane"), [""])
sketch20.MapMode = "FlatFace"
sketch20.AttachmentOffset = App.Placement(Vector(0, 0, -52), App.Rotation())
sketch20.addGeometry([
    Part.Circle(Vector(6.2, -20, 0), Vector(0, 0, 1), 1.7),
    Part.Circle(Vector(6.2, 34, 0), Vector(0, 0, 1), 1.7),
], False)
sketch20.addConstraint([
    Sketcher.Constraint("Equal", 0, 1),
    Sketcher.Constraint("Vertical", 0, 3, 1, 3),
    Sketcher.Constraint("Diameter", 0, Q("3.4 mm")),
    Sketcher.Constraint("DistanceY", 0, 3, -1, 1, Q("20 mm")),
    Sketcher.Constraint("DistanceY", -1, 1, 1, 3, Q("34 mm")),
    Sketcher.Constraint("DistanceX", -1, 1, 0, 3, Q("6.2 mm")),
])
sketch20.setExpression("Constraints[2]", "Params.sketch20_diameter")
pocket6 = body.newObject("PartDesign::Pocket", "Pocket005")
pocket6.Profile = sketch20
pocket6.setExpression("Length", "Params.pocket6_length")
pocket6.Reversed = True

doc.recompute()
